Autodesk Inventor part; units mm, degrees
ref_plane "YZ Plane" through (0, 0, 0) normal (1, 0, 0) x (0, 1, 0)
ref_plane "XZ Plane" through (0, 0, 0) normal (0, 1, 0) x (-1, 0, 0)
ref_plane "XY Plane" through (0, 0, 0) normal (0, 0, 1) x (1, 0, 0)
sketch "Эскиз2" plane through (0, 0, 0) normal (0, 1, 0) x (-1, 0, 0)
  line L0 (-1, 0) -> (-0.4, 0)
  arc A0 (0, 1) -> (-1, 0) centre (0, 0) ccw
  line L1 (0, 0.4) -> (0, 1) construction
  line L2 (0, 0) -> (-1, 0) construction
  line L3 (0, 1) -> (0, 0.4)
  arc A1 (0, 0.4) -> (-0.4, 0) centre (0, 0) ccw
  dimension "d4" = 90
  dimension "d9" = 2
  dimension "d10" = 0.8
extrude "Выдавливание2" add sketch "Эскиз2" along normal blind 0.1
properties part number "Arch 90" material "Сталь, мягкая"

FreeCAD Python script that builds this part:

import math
import FreeCAD as App
import Part
import Sketcher

V = App.Vector
Q = App.Units.Quantity

doc = App.newDocument("Part")
body = doc.addObject("PartDesign::Body", "Body")

sketch1 = doc.addObject("Sketcher::SketchObject", "Sketch")
body.addObject(sketch1)
sketch1.AttachmentSupport = (doc.XZ_Plane, [""])
sketch1.MapMode = "FlatFace"
sketch1.addGeometry([
    Part.ArcOfCircle(Part.Circle(V(0, 0, 0), V(0, 0, 1), 1), math.radians(0), math.radians(90)),
    Part.LineSegment(V(1, 0, 0), V(0.4, 0, 0)),
    Part.ArcOfCircle(Part.Circle(V(0, 0, 0), V(0, 0, 1), 0.4), math.radians(0), math.radians(90)),
    Part.LineSegment(V(0, 0.4, 0), V(0, 1, 0)),
], False)
sketch1.addConstraint([
    Sketcher.Constraint("Coincident", 0, 1, 1, 1),
    Sketcher.Constraint("Coincident", 1, 2, 2, 1),
    Sketcher.Constraint("Coincident", 2, 2, 3, 1),
    Sketcher.Constraint("Coincident", 3, 2, 0, 2),
    Sketcher.Constraint("Horizontal", 1),
    Sketcher.Constraint("Vertical", 3),
    Sketcher.Constraint("Coincident", 0, 3, -1, 1),
    Sketcher.Constraint("Coincident", 2, 3, -1, 1),
    Sketcher.Constraint("PointOnObject", 0, 1, -1),
    Sketcher.Constraint("PointOnObject", 2, 2, -2),
    Sketcher.Constraint("Radius", 0, Q("1 mm")),
    Sketcher.Constraint("Radius", 2, Q("0.4 mm")),
])
pad1 = doc.addObject("PartDesign::Pad", "Pad")
body.addObject(pad1)
pad1.Profile = sketch1
pad1.Length = 0.1
pad1.Reversed = True

doc.recompute()
